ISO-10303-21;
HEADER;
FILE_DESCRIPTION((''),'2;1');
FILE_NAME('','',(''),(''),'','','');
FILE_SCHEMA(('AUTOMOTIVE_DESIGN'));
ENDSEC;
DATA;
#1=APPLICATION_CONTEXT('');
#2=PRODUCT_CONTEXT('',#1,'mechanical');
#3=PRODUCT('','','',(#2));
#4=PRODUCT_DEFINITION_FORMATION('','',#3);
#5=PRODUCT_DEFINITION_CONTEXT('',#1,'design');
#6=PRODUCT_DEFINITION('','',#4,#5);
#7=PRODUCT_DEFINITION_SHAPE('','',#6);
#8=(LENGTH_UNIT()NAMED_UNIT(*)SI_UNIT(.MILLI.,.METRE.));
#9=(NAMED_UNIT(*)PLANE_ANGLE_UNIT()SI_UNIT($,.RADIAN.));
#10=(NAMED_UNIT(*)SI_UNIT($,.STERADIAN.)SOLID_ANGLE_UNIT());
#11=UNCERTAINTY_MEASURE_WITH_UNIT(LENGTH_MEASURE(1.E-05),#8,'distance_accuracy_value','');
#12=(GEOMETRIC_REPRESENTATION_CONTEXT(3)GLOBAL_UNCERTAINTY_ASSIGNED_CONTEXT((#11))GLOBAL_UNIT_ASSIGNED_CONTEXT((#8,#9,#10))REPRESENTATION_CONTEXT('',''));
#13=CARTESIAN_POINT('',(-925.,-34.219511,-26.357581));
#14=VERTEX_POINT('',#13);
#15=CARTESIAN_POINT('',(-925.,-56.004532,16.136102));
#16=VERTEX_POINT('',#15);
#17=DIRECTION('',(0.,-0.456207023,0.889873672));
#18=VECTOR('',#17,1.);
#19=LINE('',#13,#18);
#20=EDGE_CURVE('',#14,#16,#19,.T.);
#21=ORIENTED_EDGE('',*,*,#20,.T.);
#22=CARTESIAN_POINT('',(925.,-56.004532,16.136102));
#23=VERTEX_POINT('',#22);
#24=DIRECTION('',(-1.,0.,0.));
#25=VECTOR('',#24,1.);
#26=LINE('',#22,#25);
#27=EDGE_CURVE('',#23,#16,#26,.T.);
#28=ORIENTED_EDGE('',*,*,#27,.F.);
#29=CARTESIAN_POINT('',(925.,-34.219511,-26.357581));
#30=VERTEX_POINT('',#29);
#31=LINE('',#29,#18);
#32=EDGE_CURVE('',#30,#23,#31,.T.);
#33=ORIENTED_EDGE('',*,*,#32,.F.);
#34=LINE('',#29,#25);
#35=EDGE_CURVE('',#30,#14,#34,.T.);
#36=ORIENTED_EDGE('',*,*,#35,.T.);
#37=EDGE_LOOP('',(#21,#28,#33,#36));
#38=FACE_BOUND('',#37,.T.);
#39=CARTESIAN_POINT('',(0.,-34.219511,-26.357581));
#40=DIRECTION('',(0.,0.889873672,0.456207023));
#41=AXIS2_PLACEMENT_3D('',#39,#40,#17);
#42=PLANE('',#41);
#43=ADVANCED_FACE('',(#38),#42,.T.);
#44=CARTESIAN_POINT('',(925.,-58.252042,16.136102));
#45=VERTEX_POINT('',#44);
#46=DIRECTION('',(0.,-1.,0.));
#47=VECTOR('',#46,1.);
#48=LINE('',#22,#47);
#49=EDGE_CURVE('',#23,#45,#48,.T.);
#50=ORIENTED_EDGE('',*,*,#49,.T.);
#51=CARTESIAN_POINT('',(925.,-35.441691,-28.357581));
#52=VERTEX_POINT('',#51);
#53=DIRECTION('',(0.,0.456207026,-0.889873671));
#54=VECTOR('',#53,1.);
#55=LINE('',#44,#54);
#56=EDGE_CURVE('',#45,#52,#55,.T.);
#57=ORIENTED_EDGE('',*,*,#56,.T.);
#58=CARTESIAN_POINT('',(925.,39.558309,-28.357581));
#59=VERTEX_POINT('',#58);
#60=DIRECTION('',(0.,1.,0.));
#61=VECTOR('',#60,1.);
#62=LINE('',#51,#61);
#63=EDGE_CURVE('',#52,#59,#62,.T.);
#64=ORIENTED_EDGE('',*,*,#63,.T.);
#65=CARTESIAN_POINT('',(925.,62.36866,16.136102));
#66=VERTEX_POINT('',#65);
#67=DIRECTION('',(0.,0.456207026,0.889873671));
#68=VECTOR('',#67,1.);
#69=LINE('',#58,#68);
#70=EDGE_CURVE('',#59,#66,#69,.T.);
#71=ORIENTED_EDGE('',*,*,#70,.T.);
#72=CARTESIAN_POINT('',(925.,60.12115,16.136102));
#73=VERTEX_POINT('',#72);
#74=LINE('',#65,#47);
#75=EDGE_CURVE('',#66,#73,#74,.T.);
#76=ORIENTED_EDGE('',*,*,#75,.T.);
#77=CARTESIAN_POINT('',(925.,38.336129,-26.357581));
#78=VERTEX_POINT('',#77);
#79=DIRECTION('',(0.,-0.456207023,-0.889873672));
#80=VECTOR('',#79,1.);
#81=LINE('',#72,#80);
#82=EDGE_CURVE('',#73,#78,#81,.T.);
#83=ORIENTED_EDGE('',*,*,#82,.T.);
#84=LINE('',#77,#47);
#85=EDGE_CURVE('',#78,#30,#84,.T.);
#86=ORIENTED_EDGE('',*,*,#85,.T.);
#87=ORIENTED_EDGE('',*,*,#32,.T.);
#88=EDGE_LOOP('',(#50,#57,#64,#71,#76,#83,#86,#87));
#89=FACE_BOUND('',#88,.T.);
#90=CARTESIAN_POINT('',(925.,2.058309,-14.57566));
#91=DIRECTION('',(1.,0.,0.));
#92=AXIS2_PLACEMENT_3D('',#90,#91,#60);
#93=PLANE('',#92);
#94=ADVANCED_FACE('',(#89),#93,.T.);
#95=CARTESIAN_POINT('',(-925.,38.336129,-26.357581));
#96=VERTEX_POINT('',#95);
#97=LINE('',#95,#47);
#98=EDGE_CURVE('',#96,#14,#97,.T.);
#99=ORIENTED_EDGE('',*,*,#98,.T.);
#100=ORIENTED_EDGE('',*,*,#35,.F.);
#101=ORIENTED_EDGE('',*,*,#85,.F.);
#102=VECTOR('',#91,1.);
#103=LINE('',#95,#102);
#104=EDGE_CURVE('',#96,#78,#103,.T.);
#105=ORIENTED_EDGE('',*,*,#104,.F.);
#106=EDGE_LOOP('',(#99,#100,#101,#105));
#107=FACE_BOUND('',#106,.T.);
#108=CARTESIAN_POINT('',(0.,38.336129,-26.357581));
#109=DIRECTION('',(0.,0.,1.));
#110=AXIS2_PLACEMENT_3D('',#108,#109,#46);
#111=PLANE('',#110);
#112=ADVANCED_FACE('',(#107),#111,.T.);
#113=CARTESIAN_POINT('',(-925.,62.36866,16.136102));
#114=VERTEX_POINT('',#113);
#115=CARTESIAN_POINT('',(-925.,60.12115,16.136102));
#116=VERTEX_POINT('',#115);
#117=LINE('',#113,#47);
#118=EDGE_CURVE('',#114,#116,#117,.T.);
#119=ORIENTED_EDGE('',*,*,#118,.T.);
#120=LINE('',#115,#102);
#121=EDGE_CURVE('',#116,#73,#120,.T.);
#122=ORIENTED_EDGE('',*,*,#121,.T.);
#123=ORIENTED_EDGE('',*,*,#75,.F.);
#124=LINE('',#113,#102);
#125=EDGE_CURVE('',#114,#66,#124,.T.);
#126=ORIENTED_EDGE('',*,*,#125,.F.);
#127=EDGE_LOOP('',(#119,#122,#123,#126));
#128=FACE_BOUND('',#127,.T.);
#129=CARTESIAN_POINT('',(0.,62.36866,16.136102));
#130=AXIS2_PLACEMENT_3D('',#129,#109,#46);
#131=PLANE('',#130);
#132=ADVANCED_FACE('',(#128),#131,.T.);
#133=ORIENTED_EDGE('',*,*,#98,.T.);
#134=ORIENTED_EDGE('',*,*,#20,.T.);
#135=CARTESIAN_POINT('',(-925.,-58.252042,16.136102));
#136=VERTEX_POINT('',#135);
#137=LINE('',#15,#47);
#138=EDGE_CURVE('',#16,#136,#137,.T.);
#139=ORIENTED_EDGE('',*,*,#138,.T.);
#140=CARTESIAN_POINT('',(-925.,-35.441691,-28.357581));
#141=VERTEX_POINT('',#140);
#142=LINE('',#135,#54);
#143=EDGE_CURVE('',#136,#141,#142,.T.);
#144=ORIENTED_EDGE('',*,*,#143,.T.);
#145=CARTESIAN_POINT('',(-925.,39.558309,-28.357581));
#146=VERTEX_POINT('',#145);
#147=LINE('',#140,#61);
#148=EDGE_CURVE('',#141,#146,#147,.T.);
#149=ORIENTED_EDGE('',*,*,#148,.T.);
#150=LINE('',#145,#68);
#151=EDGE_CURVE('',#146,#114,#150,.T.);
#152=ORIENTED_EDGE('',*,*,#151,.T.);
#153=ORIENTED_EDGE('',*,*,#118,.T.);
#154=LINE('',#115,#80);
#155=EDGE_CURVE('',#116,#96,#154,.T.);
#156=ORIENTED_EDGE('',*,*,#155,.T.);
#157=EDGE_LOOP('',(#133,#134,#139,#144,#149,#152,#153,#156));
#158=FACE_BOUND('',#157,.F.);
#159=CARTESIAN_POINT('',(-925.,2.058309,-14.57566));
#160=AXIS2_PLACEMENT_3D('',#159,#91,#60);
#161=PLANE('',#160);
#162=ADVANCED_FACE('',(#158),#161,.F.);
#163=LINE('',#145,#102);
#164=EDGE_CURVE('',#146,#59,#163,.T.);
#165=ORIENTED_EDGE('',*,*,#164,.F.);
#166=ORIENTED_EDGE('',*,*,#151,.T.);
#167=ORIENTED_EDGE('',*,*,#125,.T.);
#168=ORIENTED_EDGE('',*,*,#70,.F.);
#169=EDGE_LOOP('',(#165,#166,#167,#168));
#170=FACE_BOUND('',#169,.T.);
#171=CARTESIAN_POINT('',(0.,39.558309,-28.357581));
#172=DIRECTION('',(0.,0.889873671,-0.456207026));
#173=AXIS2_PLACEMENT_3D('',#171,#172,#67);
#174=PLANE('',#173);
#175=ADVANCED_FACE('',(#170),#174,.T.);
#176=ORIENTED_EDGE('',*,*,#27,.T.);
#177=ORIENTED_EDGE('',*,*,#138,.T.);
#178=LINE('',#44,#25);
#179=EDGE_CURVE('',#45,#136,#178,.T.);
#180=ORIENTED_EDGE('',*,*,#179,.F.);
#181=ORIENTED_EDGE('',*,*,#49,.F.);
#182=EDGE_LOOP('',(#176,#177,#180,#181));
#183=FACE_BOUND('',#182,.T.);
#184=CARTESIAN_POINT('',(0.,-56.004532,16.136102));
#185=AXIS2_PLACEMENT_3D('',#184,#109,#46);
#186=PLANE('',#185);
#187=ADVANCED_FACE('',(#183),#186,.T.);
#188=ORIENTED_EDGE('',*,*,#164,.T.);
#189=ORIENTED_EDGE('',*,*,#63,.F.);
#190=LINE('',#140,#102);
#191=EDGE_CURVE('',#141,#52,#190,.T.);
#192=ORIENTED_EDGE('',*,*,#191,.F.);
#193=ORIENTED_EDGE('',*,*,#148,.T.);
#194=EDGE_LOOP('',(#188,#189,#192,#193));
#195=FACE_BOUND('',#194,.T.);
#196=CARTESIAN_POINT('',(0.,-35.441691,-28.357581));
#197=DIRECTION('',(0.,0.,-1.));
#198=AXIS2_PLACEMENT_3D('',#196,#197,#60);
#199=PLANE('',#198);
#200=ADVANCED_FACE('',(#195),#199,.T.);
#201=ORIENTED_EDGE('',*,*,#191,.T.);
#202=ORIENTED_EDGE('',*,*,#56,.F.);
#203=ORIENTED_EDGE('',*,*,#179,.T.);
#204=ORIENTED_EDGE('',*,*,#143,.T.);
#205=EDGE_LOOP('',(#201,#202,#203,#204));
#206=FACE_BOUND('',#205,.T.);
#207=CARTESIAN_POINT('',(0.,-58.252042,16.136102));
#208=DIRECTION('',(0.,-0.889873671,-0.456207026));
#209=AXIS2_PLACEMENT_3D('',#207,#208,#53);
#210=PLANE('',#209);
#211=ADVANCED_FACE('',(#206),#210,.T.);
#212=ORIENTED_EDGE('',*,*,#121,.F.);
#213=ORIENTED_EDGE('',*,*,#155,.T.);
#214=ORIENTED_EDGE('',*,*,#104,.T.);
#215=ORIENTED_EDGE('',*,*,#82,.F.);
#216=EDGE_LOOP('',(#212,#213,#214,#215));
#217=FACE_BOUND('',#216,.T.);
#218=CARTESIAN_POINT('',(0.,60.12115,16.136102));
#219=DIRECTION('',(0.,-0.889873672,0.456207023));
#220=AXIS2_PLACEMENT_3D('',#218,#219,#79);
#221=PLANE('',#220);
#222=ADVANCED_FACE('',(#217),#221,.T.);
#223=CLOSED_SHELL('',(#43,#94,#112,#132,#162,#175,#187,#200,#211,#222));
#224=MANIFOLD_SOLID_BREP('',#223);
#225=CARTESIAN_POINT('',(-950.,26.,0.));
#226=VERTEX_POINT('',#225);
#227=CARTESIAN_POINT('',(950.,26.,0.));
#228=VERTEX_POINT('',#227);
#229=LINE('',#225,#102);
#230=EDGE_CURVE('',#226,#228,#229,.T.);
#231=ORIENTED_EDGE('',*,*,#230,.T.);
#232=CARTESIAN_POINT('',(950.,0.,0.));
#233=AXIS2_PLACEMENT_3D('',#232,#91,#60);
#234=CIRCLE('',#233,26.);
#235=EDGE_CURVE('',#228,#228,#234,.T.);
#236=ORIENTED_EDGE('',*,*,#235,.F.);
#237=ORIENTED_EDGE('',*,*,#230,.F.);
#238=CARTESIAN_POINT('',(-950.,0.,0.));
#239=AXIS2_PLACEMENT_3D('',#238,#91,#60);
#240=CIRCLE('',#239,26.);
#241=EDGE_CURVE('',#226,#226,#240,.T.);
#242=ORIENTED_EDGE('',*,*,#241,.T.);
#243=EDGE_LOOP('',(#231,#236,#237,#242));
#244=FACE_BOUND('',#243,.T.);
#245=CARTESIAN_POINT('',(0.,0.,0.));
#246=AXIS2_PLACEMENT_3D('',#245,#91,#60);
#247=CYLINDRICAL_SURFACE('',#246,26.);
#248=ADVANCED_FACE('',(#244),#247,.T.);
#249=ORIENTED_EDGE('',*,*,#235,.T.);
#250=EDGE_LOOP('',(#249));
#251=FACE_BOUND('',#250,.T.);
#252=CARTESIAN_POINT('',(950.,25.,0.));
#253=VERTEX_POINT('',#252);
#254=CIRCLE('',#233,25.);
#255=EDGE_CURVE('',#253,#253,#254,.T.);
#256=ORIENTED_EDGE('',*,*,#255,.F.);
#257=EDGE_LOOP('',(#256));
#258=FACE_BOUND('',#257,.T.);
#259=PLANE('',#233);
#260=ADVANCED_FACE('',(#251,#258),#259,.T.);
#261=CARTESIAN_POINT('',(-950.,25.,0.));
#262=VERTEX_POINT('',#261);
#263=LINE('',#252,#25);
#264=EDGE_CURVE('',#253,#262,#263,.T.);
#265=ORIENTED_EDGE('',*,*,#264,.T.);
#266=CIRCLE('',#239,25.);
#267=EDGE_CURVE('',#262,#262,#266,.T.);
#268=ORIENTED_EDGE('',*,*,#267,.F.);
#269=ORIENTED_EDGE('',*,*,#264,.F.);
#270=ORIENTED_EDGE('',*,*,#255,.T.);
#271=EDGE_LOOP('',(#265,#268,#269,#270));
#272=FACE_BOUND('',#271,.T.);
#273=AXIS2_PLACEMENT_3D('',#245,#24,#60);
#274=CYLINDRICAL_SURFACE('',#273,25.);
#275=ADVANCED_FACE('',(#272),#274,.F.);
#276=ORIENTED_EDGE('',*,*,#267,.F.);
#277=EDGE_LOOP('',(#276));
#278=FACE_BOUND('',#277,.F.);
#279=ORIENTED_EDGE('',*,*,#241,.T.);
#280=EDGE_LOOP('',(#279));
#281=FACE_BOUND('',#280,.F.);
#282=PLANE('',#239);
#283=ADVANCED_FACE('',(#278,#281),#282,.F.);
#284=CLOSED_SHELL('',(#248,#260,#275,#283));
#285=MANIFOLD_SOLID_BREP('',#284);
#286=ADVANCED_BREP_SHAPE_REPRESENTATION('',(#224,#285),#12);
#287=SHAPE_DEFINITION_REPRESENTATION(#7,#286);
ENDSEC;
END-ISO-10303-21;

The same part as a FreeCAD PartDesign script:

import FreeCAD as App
import Part
import Sketcher

V = App.Vector

doc = App.newDocument("Part")
body = doc.addObject("PartDesign::Body", "Body")

# Sketch on YZ plane
sketch1 = doc.addObject("Sketcher::SketchObject", "Sketch")
body.addObject(sketch1)
sketch1.AttachmentSupport = (doc.YZ_Plane, [""])
sketch1.MapMode = "FlatFace"
sketch1.addGeometry([
    Part.LineSegment(V(-58.3, 16.1, 0), V(-35.4, -28.4, 0)),  # 0
    Part.LineSegment(V(-35.4, -28.4, 0), V(39.6, -28.4, 0)),  # 1
    Part.LineSegment(V(39.6, -28.4, 0), V(62.4, 16.1, 0)),  # 2
    Part.LineSegment(V(62.4, 16.1, 0), V(60.1, 16.1, 0)),  # 3
    Part.LineSegment(V(60.1, 16.1, 0), V(38.3, -26.4, 0)),  # 4
    Part.LineSegment(V(38.3, -26.4, 0), V(-34.2, -26.4, 0)),  # 5
    Part.LineSegment(V(-34.2, -26.4, 0), V(-56, 16.1, 0)),  # 6
    Part.LineSegment(V(-56, 16.1, 0), V(-58.3, 16.1, 0)),  # 7
], False)
sketch1.addConstraint([
    Sketcher.Constraint("Coincident", 0, 2, 1, 1),
    Sketcher.Constraint("Coincident", 1, 2, 2, 1),
    Sketcher.Constraint("Coincident", 2, 2, 3, 1),
    Sketcher.Constraint("Coincident", 3, 2, 4, 1),
    Sketcher.Constraint("Coincident", 4, 2, 5, 1),
    Sketcher.Constraint("Coincident", 5, 2, 6, 1),
    Sketcher.Constraint("Coincident", 6, 2, 7, 1),
    Sketcher.Constraint("Coincident", 7, 2, 0, 1),
    Sketcher.Constraint("Horizontal", 1),
    Sketcher.Constraint("Horizontal", 3),
    Sketcher.Constraint("Horizontal", 5),
    Sketcher.Constraint("Horizontal", 7),
    Sketcher.Constraint("Parallel", 2, 4),
    Sketcher.Constraint("Parallel", 0, 6),
    Sketcher.Constraint("Horizontal", 3, 2, 6, 2),
    Sketcher.Constraint("Equal", 3, 7),
    Sketcher.Constraint("Equal", 0, 2),
    Sketcher.Constraint("DistanceX", 1, 1, 1, 2, 75.0),
    Sketcher.Constraint("Distance", 0, 49.999999),
    Sketcher.Constraint("DistanceY", 1, 2, 4, 2, 2.0),
    Sketcher.Constraint("DistanceX", 3, 2, 3, 1, 2.24751),
    Sketcher.Constraint("DistanceX", 5, 2, 5, 1, 72.55564),
    Sketcher.Constraint("DistanceX", 0, 2, -1, 1, 35.441691),
    Sketcher.Constraint("DistanceY", 0, 2, -1, 1, 28.357581),
])
pad1 = doc.addObject("PartDesign::Pad", "Pad")
body.addObject(pad1)
pad1.Profile = sketch1
pad1.Length = 1850
pad1.Midplane = True
body2 = doc.addObject("PartDesign::Body", "Body001")

# Sketch on YZ plane
sketch2 = doc.addObject("Sketcher::SketchObject", "Sketch001")
body2.addObject(sketch2)
sketch2.AttachmentSupport = (doc.getObject("YZ_Plane001"), [""])
sketch2.MapMode = "FlatFace"
sketch2.addGeometry([
    Part.Circle(V(0, 0, 0), V(0, 0, 1), 26),
    Part.Circle(V(0, 0, 0), V(0, 0, 1), 25),
], False)
sketch2.addConstraint([
    Sketcher.Constraint("Coincident", 0, 3, -1, 1),
    Sketcher.Constraint("Coincident", 1, 3, -1, 1),
    Sketcher.Constraint("Diameter", 0, 52.0),
    Sketcher.Constraint("Diameter", 1, 50.0),
])
pad2 = doc.addObject("PartDesign::Pad", "Pad001")
body2.addObject(pad2)
pad2.Profile = sketch2
pad2.Length = 1900
pad2.Midplane = True

doc.recompute()
